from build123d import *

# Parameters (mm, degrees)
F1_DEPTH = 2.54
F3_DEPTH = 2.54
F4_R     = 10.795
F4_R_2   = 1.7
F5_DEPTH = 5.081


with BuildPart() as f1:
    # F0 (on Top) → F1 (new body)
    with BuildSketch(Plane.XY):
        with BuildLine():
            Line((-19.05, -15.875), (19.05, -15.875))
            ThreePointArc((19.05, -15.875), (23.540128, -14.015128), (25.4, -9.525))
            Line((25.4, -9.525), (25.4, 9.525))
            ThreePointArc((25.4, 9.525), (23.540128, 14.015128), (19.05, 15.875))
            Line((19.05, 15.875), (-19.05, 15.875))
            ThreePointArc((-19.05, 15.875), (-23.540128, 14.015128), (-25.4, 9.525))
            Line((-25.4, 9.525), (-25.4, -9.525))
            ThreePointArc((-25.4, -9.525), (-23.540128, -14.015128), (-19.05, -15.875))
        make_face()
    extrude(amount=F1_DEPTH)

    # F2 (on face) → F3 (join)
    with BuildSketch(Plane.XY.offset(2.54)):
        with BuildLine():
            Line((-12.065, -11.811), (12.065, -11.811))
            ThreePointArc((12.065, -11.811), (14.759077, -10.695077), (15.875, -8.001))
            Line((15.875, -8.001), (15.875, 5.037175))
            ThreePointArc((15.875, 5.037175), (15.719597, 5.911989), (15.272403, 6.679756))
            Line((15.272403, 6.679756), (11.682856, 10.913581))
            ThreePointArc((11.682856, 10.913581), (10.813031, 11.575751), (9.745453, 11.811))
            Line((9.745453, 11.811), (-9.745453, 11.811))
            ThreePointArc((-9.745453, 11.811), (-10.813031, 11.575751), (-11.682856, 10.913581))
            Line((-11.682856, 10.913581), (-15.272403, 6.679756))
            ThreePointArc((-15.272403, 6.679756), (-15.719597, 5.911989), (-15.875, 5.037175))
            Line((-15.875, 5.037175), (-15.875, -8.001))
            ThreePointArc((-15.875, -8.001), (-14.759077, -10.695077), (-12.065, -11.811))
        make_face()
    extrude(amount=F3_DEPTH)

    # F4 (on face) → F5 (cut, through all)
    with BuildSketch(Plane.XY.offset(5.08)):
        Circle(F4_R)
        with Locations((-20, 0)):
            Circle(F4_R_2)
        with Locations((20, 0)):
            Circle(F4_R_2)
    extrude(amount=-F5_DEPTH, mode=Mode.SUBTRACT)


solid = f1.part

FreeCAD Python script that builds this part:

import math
import FreeCAD as App
import Part
import Sketcher

V = App.Vector
Q = App.Units.Quantity

doc = App.newDocument("Part")
body = doc.addObject("PartDesign::Body", "Body")

# Sketch on XY plane
sketch1 = doc.addObject("Sketcher::SketchObject", "Sketch")
body.addObject(sketch1)
sketch1.AttachmentSupport = (doc.XY_Plane, [""])
sketch1.MapMode = "FlatFace"
sketch1.addGeometry([
    Part.LineSegment(V(-19, -16, 0), V(19, -16, 0)),  # 0
    Part.ArcOfCircle(Part.Circle(V(19, -10, 0), V(0, 0, 1), 6), math.radians(-90), math.radians(0)),  # 1
    Part.LineSegment(V(25, -10, 0), V(25, 10, 0)),  # 2
    Part.ArcOfCircle(Part.Circle(V(19, 10, 0), V(0, 0, 1), 6), math.radians(0), math.radians(90)),  # 3
    Part.LineSegment(V(19, 16, 0), V(-19, 16, 0)),  # 4
    Part.ArcOfCircle(Part.Circle(V(-19, 10, 0), V(0, 0, 1), 6), math.radians(90), math.radians(180)),  # 5
    Part.LineSegment(V(-25, 10, 0), V(-25, -10, 0)),  # 6
    Part.ArcOfCircle(Part.Circle(V(-19, -10, 0), V(0, 0, 1), 6), math.radians(-180), math.radians(-90)),  # 7
], False)
sketch1.addConstraint([
    Sketcher.Constraint("Tangent", 0, 2, 1, 1),
    Sketcher.Constraint("Tangent", 1, 2, 2, 1),
    Sketcher.Constraint("Tangent", 2, 2, 3, 1),
    Sketcher.Constraint("Tangent", 3, 2, 4, 1),
    Sketcher.Constraint("Tangent", 4, 2, 5, 1),
    Sketcher.Constraint("Tangent", 5, 2, 6, 1),
    Sketcher.Constraint("Tangent", 6, 2, 7, 1),
    Sketcher.Constraint("Tangent", 7, 2, 0, 1),
    Sketcher.Constraint("Horizontal", 0),
    Sketcher.Constraint("Vertical", 2),
    Sketcher.Constraint("Horizontal", 4),
    Sketcher.Constraint("Vertical", 6),
    Sketcher.Constraint("Equal", 1, 3),
    Sketcher.Constraint("Equal", 3, 5),
    Sketcher.Constraint("Equal", 5, 7),
    Sketcher.Constraint("Symmetric", 1, 3, 5, 3, -1, 1),
    Sketcher.Constraint("Radius", 1, Q("0.25 in")),
    Sketcher.Constraint("DistanceX", 0, 1, 0, 2, Q("1.5 in")),
    Sketcher.Constraint("DistanceY", 0, 2, 3, 3, Q("1 in")),
])
pad1 = doc.addObject("PartDesign::Pad", "Pad")
body.addObject(pad1)
pad1.Profile = sketch1
pad1.Length = Q("0.1 in")

# Sketch on XY plane
sketch2 = doc.addObject("Sketcher::SketchObject", "Sketch001")
body.addObject(sketch2)
sketch2.AttachmentSupport = (doc.XY_Plane, [""])
sketch2.MapMode = "FlatFace"
sketch2.AttachmentOffset = App.Placement(V(0, 0, 0.1 * 25.4), App.Rotation())
sketch2.addGeometry([
    Part.LineSegment(V(-12.1, -11.8, 0), V(12.1, -11.8, 0)),  # 0
    Part.ArcOfCircle(Part.Circle(V(12.1, -8, 0), V(0, 0, 1), 3.8), math.radians(-90), math.radians(0)),  # 1
    Part.LineSegment(V(15.9, -8, 0), V(15.9, 5, 0)),  # 2
    Part.ArcOfCircle(Part.Circle(V(13.3, 5, 0), V(0, 0, 1), 2.5), math.radians(0), math.radians(40)),  # 3
    Part.LineSegment(V(15.3, 6.7, 0), V(11.7, 10.9, 0)),  # 4
    Part.ArcOfCircle(Part.Circle(V(9.7, 9.3, 0), V(0, 0, 1), 2.5), math.radians(40), math.radians(90)),  # 5
    Part.LineSegment(V(9.7, 11.8, 0), V(-9.7, 11.8, 0)),  # 6
    Part.ArcOfCircle(Part.Circle(V(-9.7, 9.3, 0), V(0, 0, 1), 2.5), math.radians(90), math.radians(140)),  # 7
    Part.LineSegment(V(-11.7, 10.9, 0), V(-15.3, 6.7, 0)),  # 8
    Part.ArcOfCircle(Part.Circle(V(-13.3, 5, 0), V(0, 0, 1), 2.5), math.radians(140), math.radians(180)),  # 9
    Part.LineSegment(V(-15.9, 5, 0), V(-15.9, -8, 0)),  # 10
    Part.ArcOfCircle(Part.Circle(V(-12.1, -8, 0), V(0, 0, 1), 3.8), math.radians(180), math.radians(270)),  # 11
], False)
sketch2.addConstraint([
    Sketcher.Constraint("Tangent", 0, 2, 1, 1),
    Sketcher.Constraint("Tangent", 1, 2, 2, 1),
    Sketcher.Constraint("Tangent", 2, 2, 3, 1),
    Sketcher.Constraint("Tangent", 3, 2, 4, 1),
    Sketcher.Constraint("Tangent", 4, 2, 5, 1),
    Sketcher.Constraint("Tangent", 5, 2, 6, 1),
    Sketcher.Constraint("Tangent", 6, 2, 7, 1),
    Sketcher.Constraint("Tangent", 7, 2, 8, 1),
    Sketcher.Constraint("Tangent", 8, 2, 9, 1),
    Sketcher.Constraint("Tangent", 9, 2, 10, 1),
    Sketcher.Constraint("Tangent", 10, 2, 11, 1),
    Sketcher.Constraint("Tangent", 11, 2, 0, 1),
    Sketcher.Constraint("Horizontal", 0),
    Sketcher.Constraint("Vertical", 2),
    Sketcher.Constraint("Horizontal", 6),
    Sketcher.Constraint("Vertical", 10),
    Sketcher.Constraint("Equal", 5, 7),
    Sketcher.Constraint("Equal", 3, 9),
    Sketcher.Constraint("Equal", 1, 11),
    Sketcher.Constraint("Symmetric", 3, 3, 9, 3, -2),
    Sketcher.Constraint("Horizontal", 4, 2, 7, 2),
    Sketcher.Constraint("Radius", 3, Q("0.0999999 in")),
    Sketcher.Constraint("Radius", 5, Q("0.1000001 in")),
    Sketcher.Constraint("Radius", 1, Q("0.15 in")),
    Sketcher.Constraint("DistanceX", 9, 3, 1, 3, Q("1.0000001 in")),
    Sketcher.Constraint("DistanceY", 1, 3, 5, 3, Q("0.6799999 in")),
    Sketcher.Constraint("DistanceY", 1, 3, -1, 1, Q("0.315 in")),
    Sketcher.Constraint("DistanceX", 3, 3, 3, 2, 1.9374),
    Sketcher.Constraint("DistanceX", 6, 2, 6, 1, 19.490906),
])
pad2 = doc.addObject("PartDesign::Pad", "Pad001")
body.addObject(pad2)
pad2.Profile = sketch2
pad2.Length = Q("0.1 in")

# Sketch on XY plane
sketch3 = doc.addObject("Sketcher::SketchObject", "Sketch002")
body.addObject(sketch3)
sketch3.AttachmentSupport = (doc.XY_Plane, [""])
sketch3.MapMode = "FlatFace"
sketch3.AttachmentOffset = App.Placement(V(0, 0, 0.2 * 25.4), App.Rotation())
sketch3.addGeometry([
    Part.Circle(V(0, 0, 0), V(0, 0, 1), 10.8),
    Part.Circle(V(-20, 0, 0), V(0, 0, 1), 1.7),
    Part.Circle(V(20, 0, 0), V(0, 0, 1), 1.7),
], False)
sketch3.addConstraint([
    Sketcher.Constraint("Coincident", 0, 3, -1, 1),
    Sketcher.Constraint("Equal", 1, 2),
    Sketcher.Constraint("Symmetric", 1, 3, 2, 3, -1, 1),
    Sketcher.Constraint("PointOnObject", 1, 3, -1),
    Sketcher.Constraint("Diameter", 0, Q("0.85 in")),
    Sketcher.Constraint("Diameter", 1, 3.4),
    Sketcher.Constraint("DistanceX", 1, 3, -1, 1, 20.0),
])
pocket1 = doc.addObject("PartDesign::Pocket", "Pocket")
body.addObject(pocket1)
pocket1.Profile = sketch3
pocket1.Type = "ThroughAll"

doc.recompute()
